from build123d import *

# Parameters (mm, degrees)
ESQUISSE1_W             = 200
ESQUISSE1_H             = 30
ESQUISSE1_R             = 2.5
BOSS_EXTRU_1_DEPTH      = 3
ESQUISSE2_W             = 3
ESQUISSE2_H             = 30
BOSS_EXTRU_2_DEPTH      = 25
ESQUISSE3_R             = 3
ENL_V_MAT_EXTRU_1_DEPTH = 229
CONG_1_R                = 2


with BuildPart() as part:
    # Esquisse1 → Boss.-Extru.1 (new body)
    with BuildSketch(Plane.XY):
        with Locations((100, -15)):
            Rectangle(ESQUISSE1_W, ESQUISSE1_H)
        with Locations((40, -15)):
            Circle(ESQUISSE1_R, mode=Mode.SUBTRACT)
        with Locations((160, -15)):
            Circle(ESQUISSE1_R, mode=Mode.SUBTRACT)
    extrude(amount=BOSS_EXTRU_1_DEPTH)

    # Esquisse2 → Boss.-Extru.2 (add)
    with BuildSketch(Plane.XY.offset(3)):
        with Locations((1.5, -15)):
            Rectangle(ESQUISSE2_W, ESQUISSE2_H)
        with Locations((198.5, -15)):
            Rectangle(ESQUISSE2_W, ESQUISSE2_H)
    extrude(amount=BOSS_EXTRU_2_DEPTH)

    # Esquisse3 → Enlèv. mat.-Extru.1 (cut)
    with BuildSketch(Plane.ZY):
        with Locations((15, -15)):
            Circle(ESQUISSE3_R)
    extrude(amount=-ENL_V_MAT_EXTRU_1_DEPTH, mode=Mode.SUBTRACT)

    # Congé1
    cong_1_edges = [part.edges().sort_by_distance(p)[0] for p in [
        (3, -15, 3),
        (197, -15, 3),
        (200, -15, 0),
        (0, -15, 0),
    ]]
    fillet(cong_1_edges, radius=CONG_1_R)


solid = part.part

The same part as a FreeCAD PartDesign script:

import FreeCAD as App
import Part
import Sketcher


def edges_at(feature, points):
    """Names of the edges that pass closest to the given points."""
    edges = feature.Shape.Edges
    near = lambda p: min(range(len(edges)), key=lambda i: edges[i].distToShape(Part.Vertex(*p))[0])
    return sorted({f"Edge{near(p) + 1}" for p in points})

doc = App.newDocument("Part")
body = doc.addObject("PartDesign::Body", "Body")

# Sketch on XY plane
sketch1 = body.newObject("Sketcher::SketchObject", "Sketch")
sketch1.AttachmentSupport = (doc.getObject("XY_Plane"), [""])
sketch1.MapMode = "FlatFace"
sketch1.addGeometry(Part.LineSegment(App.Vector(0, 0, 0), App.Vector(0, -30, 0)), False)
sketch1.addGeometry(Part.LineSegment(App.Vector(0, -30, 0), App.Vector(200, -30, 0)), False)
sketch1.addGeometry(Part.LineSegment(App.Vector(200, -30, 0), App.Vector(200, 0, 0)), False)
sketch1.addGeometry(Part.LineSegment(App.Vector(200, 0, 0), App.Vector(0, 0, 0)), False)
sketch1.addGeometry(Part.Circle(App.Vector(40, -15, 0), App.Vector(0, 0, 1), 2.5), False)
sketch1.addGeometry(Part.Circle(App.Vector(160, -15, 0), App.Vector(0, 0, 1), 2.5), False)
sketch1.addConstraint(Sketcher.Constraint("Coincident", 0, 2, 1, 1))
sketch1.addConstraint(Sketcher.Constraint("Coincident", 1, 2, 2, 1))
sketch1.addConstraint(Sketcher.Constraint("Coincident", 2, 2, 3, 1))
sketch1.addConstraint(Sketcher.Constraint("Coincident", 3, 2, 0, 1))
sketch1.addConstraint(Sketcher.Constraint("Vertical", 0))
sketch1.addConstraint(Sketcher.Constraint("Horizontal", 1))
sketch1.addConstraint(Sketcher.Constraint("Vertical", 2))
sketch1.addConstraint(Sketcher.Constraint("Horizontal", 3))
sketch1.addConstraint(Sketcher.Constraint("Coincident", 3, 2, -1, 1))
sketch1.addConstraint(Sketcher.Constraint("Equal", 4, 5))
sketch1.addConstraint(Sketcher.Constraint("Horizontal", 4, 3, 5, 3))
sketch1.addConstraint(Sketcher.Constraint("Diameter", 4, 5.0))
sketch1.addConstraint(Sketcher.Constraint("DistanceX", 1, 1, 1, 2, 200.0))
sketch1.addConstraint(Sketcher.Constraint("DistanceY", 0, 2, 0, 1, 30.0))
sketch1.addConstraint(Sketcher.Constraint("DistanceX", -1, 1, 4, 3, 40.0))
sketch1.addConstraint(Sketcher.Constraint("DistanceY", 4, 3, -1, 1, 15.0))
sketch1.addConstraint(Sketcher.Constraint("DistanceX", -1, 1, 5, 3, 160.0))
pad1 = body.newObject("PartDesign::Pad", "Pad")
pad1.Profile = sketch1
pad1.Length = 3

# Sketch on XY plane
sketch2 = body.newObject("Sketcher::SketchObject", "Sketch001")
sketch2.AttachmentSupport = (doc.getObject("XY_Plane"), [""])
sketch2.MapMode = "FlatFace"
sketch2.AttachmentOffset = App.Placement(App.Vector(0, 0, 3), App.Rotation())
sketch2.addGeometry(Part.LineSegment(App.Vector(0, 0, 0), App.Vector(0, -30, 0)), False)
sketch2.addGeometry(Part.LineSegment(App.Vector(0, -30, 0), App.Vector(3, -30, 0)), False)
sketch2.addGeometry(Part.LineSegment(App.Vector(3, -30, 0), App.Vector(3, 0, 0)), False)
sketch2.addGeometry(Part.LineSegment(App.Vector(3, 0, 0), App.Vector(0, 0, 0)), False)
sketch2.addGeometry(Part.LineSegment(App.Vector(197, 0, 0), App.Vector(197, -30, 0)), False)
sketch2.addGeometry(Part.LineSegment(App.Vector(197, -30, 0), App.Vector(200, -30, 0)), False)
sketch2.addGeometry(Part.LineSegment(App.Vector(200, -30, 0), App.Vector(200, 0, 0)), False)
sketch2.addGeometry(Part.LineSegment(App.Vector(200, 0, 0), App.Vector(197, 0, 0)), False)
sketch2.addConstraint(Sketcher.Constraint("Coincident", 0, 2, 1, 1))
sketch2.addConstraint(Sketcher.Constraint("Coincident", 1, 2, 2, 1))
sketch2.addConstraint(Sketcher.Constraint("Coincident", 2, 2, 3, 1))
sketch2.addConstraint(Sketcher.Constraint("Coincident", 3, 2, 0, 1))
sketch2.addConstraint(Sketcher.Constraint("Coincident", 4, 2, 5, 1))
sketch2.addConstraint(Sketcher.Constraint("Coincident", 5, 2, 6, 1))
sketch2.addConstraint(Sketcher.Constraint("Coincident", 6, 2, 7, 1))
sketch2.addConstraint(Sketcher.Constraint("Coincident", 7, 2, 4, 1))
sketch2.addConstraint(Sketcher.Constraint("Vertical", 0))
sketch2.addConstraint(Sketcher.Constraint("Horizontal", 1))
sketch2.addConstraint(Sketcher.Constraint("Vertical", 2))
sketch2.addConstraint(Sketcher.Constraint("Horizontal", 3))
sketch2.addConstraint(Sketcher.Constraint("Vertical", 4))
sketch2.addConstraint(Sketcher.Constraint("Horizontal", 5))
sketch2.addConstraint(Sketcher.Constraint("Vertical", 6))
sketch2.addConstraint(Sketcher.Constraint("Horizontal", 7))
sketch2.addConstraint(Sketcher.Constraint("Coincident", 3, 2, -1, 1))
sketch2.addConstraint(Sketcher.Constraint("PointOnObject", 6, 2, -1))
sketch2.addConstraint(Sketcher.Constraint("Horizontal", 1, 2, 4, 2))
sketch2.addConstraint(Sketcher.Constraint("Equal", 3, 5))
sketch2.addConstraint(Sketcher.Constraint("DistanceX", 1, 1, 1, 2, 3.0))
sketch2.addConstraint(Sketcher.Constraint("DistanceY", 0, 2, 0, 1, 30.0))
sketch2.addConstraint(Sketcher.Constraint("DistanceX", -1, 1, 4, 2, 197.0))
pad2 = body.newObject("PartDesign::Pad", "Pad001")
pad2.Profile = sketch2
pad2.Length = 25

# Sketch on YZ plane
sketch3 = body.newObject("Sketcher::SketchObject", "Sketch002")
sketch3.AttachmentSupport = (doc.getObject("YZ_Plane"), [""])
sketch3.MapMode = "FlatFace"
sketch3.addGeometry(Part.Circle(App.Vector(-15, 15, 0), App.Vector(0, 0, 1), 3), False)
sketch3.addConstraint(Sketcher.Constraint("Diameter", 0, 6.0))
sketch3.addConstraint(Sketcher.Constraint("DistanceX", 0, 3, -1, 1, 15.0))
sketch3.addConstraint(Sketcher.Constraint("DistanceY", -1, 1, 0, 3, 15.0))
pocket1 = body.newObject("PartDesign::Pocket", "Pocket")
pocket1.Profile = sketch3
pocket1.Length = 229
pocket1.Reversed = True
doc.recompute()

fillet = body.newObject("PartDesign::Fillet", "Fillet")
fillet.Base = (pocket1, edges_at(pocket1, [
    (3, -15, 3),
    (197, -15, 3),
    (200, -15, 0),
    (0, -15, 0),
]))
fillet.Radius = 2

doc.recompute()
